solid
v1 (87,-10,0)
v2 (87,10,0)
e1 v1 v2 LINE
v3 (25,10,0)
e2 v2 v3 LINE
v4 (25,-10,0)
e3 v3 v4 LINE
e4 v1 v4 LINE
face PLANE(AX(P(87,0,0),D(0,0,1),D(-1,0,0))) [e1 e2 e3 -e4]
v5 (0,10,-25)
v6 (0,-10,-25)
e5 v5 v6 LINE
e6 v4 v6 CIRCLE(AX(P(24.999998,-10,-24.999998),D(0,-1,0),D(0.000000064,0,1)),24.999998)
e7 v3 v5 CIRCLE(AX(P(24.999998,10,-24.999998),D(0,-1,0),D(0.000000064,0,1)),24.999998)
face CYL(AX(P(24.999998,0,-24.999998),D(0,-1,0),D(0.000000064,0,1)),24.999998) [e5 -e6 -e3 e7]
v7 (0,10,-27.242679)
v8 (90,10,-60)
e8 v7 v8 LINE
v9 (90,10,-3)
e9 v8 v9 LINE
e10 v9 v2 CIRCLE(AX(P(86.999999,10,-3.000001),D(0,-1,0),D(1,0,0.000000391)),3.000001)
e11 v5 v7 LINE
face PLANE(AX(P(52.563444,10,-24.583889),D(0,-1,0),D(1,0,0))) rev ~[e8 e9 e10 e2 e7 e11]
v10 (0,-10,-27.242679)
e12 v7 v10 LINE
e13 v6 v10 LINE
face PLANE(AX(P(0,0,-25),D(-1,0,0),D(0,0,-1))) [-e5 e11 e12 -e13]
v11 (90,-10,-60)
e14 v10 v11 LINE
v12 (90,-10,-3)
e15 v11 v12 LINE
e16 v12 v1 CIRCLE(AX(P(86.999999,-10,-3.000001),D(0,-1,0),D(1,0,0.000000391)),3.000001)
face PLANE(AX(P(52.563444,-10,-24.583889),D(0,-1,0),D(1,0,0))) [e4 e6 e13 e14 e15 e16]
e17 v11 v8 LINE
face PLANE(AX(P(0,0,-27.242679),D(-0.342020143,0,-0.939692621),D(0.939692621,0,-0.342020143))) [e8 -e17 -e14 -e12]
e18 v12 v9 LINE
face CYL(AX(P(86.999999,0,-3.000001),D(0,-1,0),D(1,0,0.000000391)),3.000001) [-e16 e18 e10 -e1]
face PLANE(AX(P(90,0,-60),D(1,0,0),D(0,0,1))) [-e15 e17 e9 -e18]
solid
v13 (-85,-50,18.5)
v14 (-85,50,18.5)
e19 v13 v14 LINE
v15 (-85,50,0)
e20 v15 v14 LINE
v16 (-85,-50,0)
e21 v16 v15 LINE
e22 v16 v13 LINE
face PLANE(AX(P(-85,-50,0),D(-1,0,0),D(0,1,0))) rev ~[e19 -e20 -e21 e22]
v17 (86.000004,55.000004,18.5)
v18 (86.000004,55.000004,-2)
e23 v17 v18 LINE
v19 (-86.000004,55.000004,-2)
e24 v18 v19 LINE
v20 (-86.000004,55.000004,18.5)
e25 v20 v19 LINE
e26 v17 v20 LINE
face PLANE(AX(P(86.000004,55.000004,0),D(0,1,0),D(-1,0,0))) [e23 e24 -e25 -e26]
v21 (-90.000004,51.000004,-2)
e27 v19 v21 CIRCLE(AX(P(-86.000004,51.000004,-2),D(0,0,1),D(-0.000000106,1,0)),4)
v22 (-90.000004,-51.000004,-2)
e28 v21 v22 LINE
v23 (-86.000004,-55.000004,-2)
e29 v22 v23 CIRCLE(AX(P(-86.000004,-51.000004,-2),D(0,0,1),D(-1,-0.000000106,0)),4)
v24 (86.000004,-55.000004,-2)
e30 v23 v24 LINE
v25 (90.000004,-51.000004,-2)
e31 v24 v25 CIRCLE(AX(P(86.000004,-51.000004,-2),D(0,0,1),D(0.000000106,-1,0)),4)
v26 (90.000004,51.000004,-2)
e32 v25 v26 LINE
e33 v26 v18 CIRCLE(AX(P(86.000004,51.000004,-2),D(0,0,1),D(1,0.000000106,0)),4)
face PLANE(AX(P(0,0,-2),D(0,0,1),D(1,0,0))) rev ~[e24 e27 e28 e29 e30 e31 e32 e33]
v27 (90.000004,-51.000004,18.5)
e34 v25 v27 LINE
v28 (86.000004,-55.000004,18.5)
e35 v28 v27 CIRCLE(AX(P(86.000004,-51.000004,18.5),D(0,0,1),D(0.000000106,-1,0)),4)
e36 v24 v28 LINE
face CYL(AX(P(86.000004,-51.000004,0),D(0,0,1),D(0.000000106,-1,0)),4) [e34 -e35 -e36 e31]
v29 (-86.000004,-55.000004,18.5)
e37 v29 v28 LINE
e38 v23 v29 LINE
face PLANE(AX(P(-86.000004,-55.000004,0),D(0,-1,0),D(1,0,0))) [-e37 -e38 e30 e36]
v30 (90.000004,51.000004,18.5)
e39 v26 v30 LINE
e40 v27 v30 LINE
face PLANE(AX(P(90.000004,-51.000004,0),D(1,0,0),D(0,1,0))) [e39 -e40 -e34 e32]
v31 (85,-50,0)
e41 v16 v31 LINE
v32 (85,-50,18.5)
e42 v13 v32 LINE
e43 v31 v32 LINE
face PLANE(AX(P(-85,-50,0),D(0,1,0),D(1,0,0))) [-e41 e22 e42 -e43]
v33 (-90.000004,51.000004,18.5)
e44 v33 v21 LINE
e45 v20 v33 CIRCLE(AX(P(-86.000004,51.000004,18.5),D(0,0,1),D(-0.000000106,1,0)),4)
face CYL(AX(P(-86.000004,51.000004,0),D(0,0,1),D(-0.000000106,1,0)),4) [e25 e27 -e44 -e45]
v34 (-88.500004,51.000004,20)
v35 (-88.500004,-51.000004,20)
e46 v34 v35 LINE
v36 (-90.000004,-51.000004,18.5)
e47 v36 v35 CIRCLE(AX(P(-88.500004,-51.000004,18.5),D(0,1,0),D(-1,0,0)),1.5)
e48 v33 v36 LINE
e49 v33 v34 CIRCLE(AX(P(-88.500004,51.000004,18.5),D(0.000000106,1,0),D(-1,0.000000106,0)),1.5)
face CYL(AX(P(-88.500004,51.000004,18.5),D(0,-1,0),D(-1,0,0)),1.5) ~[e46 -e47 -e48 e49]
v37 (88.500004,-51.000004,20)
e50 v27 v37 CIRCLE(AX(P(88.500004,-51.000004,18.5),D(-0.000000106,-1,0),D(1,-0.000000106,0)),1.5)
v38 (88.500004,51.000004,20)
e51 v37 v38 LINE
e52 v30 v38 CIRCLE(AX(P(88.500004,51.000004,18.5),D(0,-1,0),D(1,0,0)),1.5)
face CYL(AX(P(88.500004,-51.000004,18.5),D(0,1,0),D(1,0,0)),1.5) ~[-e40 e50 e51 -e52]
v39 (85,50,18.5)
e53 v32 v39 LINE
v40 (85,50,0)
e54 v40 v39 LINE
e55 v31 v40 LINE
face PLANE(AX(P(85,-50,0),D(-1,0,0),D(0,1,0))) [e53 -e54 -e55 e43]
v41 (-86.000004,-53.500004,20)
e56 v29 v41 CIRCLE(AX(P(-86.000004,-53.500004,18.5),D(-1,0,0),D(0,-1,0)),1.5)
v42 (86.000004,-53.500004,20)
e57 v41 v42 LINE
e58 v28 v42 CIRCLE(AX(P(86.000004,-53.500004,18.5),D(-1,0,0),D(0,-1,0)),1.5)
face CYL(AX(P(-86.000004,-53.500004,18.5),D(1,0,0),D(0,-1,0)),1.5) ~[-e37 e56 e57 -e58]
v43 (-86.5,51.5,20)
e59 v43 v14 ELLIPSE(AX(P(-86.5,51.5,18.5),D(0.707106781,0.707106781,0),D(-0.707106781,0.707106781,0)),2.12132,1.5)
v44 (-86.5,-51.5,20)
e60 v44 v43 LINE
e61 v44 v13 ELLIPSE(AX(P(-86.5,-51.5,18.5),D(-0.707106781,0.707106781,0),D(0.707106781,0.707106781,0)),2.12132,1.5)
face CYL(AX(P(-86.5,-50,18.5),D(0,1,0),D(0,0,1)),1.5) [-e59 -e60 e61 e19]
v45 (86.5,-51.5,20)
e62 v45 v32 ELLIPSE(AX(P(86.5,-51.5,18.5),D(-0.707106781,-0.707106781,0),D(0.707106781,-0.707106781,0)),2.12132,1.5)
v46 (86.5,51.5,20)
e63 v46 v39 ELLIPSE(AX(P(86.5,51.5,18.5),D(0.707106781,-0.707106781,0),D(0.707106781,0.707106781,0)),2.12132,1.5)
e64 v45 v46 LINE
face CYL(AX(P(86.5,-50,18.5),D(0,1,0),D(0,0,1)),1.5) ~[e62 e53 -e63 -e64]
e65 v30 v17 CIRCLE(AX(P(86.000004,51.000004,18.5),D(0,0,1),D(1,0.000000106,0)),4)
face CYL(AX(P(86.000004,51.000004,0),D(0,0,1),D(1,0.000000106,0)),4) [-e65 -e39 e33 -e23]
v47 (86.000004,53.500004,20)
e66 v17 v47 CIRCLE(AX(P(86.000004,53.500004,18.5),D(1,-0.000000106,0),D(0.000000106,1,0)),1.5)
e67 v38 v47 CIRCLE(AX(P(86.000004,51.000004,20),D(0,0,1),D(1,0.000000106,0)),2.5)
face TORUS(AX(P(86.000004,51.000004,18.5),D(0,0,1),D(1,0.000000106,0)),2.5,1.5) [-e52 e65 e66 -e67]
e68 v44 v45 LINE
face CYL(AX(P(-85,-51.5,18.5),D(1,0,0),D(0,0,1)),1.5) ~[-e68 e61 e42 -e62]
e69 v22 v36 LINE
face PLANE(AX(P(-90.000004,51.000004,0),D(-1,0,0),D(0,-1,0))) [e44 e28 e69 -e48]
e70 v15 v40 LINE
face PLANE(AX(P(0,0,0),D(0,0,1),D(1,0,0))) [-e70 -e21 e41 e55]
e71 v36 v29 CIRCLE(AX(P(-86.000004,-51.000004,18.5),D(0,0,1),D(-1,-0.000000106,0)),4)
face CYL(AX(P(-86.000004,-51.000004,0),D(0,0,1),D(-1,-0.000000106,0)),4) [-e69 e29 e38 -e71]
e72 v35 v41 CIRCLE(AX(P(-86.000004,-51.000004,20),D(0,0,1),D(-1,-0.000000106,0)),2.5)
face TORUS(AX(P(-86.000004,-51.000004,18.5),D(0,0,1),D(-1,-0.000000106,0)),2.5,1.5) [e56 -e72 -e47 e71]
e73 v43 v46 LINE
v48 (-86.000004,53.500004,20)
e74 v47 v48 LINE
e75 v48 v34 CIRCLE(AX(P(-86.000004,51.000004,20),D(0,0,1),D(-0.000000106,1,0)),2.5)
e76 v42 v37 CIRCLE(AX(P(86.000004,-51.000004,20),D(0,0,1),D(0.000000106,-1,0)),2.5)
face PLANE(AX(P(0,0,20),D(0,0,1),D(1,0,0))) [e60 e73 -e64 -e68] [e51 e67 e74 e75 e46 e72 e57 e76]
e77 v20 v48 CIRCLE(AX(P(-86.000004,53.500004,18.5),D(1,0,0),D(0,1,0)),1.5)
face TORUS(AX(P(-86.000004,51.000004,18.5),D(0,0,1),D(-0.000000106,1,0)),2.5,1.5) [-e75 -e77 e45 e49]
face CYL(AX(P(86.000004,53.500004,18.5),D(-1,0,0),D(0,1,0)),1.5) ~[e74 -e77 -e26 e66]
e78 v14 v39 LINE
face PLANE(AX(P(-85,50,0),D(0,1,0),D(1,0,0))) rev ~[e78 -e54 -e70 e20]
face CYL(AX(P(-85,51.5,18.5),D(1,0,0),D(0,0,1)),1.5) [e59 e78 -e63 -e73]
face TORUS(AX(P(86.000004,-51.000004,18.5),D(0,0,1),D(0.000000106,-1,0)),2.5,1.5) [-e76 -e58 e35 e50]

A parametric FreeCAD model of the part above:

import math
import FreeCAD as App
import Part
import Sketcher
Q = App.Units.Quantity


def edges_at(feature, points):
    """Names of the edges that pass closest to the given points."""
    edges = feature.Shape.Edges
    near = lambda p: min(range(len(edges)), key=lambda i: edges[i].distToShape(Part.Vertex(*p))[0])
    return sorted({f"Edge{near(p) + 1}" for p in points})

doc = App.newDocument("Part")
body = doc.addObject("PartDesign::Body", "Body")

sketch1 = doc.addObject("Sketcher::SketchObject", "Sketch")
body.addObject(sketch1)
sketch1.AttachmentSupport = (doc.XY_Plane, [""])
sketch1.MapMode = "FlatFace"
sketch1.addGeometry([
    Part.LineSegment(App.Vector(-90, 51, 0), App.Vector(-90, -51, 0)),
    Part.ArcOfCircle(Part.Circle(App.Vector(-86, -51, 0), App.Vector(0, 0, 1), 4), math.radians(-180), math.radians(-90)),
    Part.LineSegment(App.Vector(-86, -55, 0), App.Vector(86, -55, 0)),
    Part.ArcOfCircle(Part.Circle(App.Vector(86, -51, 0), App.Vector(0, 0, 1), 4), math.radians(-90), math.radians(0)),
    Part.LineSegment(App.Vector(90, -51, 0), App.Vector(90, 51, 0)),
    Part.ArcOfCircle(Part.Circle(App.Vector(86, 51, 0), App.Vector(0, 0, 1), 4), math.radians(0), math.radians(90)),
    Part.LineSegment(App.Vector(86, 55, 0), App.Vector(-86, 55, 0)),
    Part.ArcOfCircle(Part.Circle(App.Vector(-86, 51, 0), App.Vector(0, 0, 1), 4), math.radians(90), math.radians(180)),
    Part.LineSegment(App.Vector(85, -50, 0), App.Vector(-85, -50, 0)),
    Part.LineSegment(App.Vector(-85, -50, 0), App.Vector(-85, 50, 0)),
    Part.LineSegment(App.Vector(-85, 50, 0), App.Vector(85, 50, 0)),
    Part.LineSegment(App.Vector(85, 50, 0), App.Vector(85, -50, 0)),
], False)
sketch1.addConstraint([
    Sketcher.Constraint("Tangent", 0, 2, 1, 1),
    Sketcher.Constraint("Tangent", 1, 2, 2, 1),
    Sketcher.Constraint("Tangent", 2, 2, 3, 1),
    Sketcher.Constraint("Tangent", 3, 2, 4, 1),
    Sketcher.Constraint("Tangent", 4, 2, 5, 1),
    Sketcher.Constraint("Tangent", 5, 2, 6, 1),
    Sketcher.Constraint("Tangent", 6, 2, 7, 1),
    Sketcher.Constraint("Tangent", 7, 2, 0, 1),
    Sketcher.Constraint("Coincident", 8, 2, 9, 1),
    Sketcher.Constraint("Coincident", 9, 2, 10, 1),
    Sketcher.Constraint("Coincident", 10, 2, 11, 1),
    Sketcher.Constraint("Coincident", 11, 2, 8, 1),
    Sketcher.Constraint("Vertical", 0),
    Sketcher.Constraint("Horizontal", 2),
    Sketcher.Constraint("Vertical", 4),
    Sketcher.Constraint("Horizontal", 6),
    Sketcher.Constraint("Horizontal", 8),
    Sketcher.Constraint("Vertical", 9),
    Sketcher.Constraint("Horizontal", 10),
    Sketcher.Constraint("Vertical", 11),
    Sketcher.Constraint("Equal", 1, 3),
    Sketcher.Constraint("Equal", 3, 5),
    Sketcher.Constraint("Equal", 5, 7),
    Sketcher.Constraint("Symmetric", 1, 3, 5, 3, -1, 1),
    Sketcher.Constraint("Symmetric", 8, 2, 10, 2, -1, 1),
    Sketcher.Constraint("Radius", 1, 4.0),
    Sketcher.Constraint("DistanceX", 8, 2, 8, 1, 170.0),
    Sketcher.Constraint("DistanceY", 9, 1, 9, 2, 100.0),
    Sketcher.Constraint("DistanceX", 2, 1, 2, 2, 172.000008),
    Sketcher.Constraint("DistanceY", 0, 2, 0, 1, 102.000008),
])
pad1 = doc.addObject("PartDesign::Pad", "Pad")
body.addObject(pad1)
pad1.Profile = sketch1
pad1.Length = 20

sketch2 = doc.addObject("Sketcher::SketchObject", "Sketch001")
body.addObject(sketch2)
sketch2.AttachmentSupport = (doc.XY_Plane, [""])
sketch2.MapMode = "FlatFace"
sketch2.addGeometry([
    Part.LineSegment(App.Vector(-90, 51, 0), App.Vector(-90, -51, 0)),
    Part.ArcOfCircle(Part.Circle(App.Vector(-86, -51, 0), App.Vector(0, 0, 1), 4), math.radians(-180), math.radians(-90)),
    Part.LineSegment(App.Vector(-86, -55, 0), App.Vector(86, -55, 0)),
    Part.ArcOfCircle(Part.Circle(App.Vector(86, -51, 0), App.Vector(0, 0, 1), 4), math.radians(-90), math.radians(0)),
    Part.LineSegment(App.Vector(90, -51, 0), App.Vector(90, 51, 0)),
    Part.ArcOfCircle(Part.Circle(App.Vector(86, 51, 0), App.Vector(0, 0, 1), 4), math.radians(0), math.radians(90)),
    Part.LineSegment(App.Vector(86, 55, 0), App.Vector(-86, 55, 0)),
    Part.ArcOfCircle(Part.Circle(App.Vector(-86, 51, 0), App.Vector(0, 0, 1), 4), math.radians(90), math.radians(180)),
], False)
sketch2.addConstraint([
    Sketcher.Constraint("Tangent", 0, 2, 1, 1),
    Sketcher.Constraint("Tangent", 1, 2, 2, 1),
    Sketcher.Constraint("Tangent", 2, 2, 3, 1),
    Sketcher.Constraint("Tangent", 3, 2, 4, 1),
    Sketcher.Constraint("Tangent", 4, 2, 5, 1),
    Sketcher.Constraint("Tangent", 5, 2, 6, 1),
    Sketcher.Constraint("Tangent", 6, 2, 7, 1),
    Sketcher.Constraint("Tangent", 7, 2, 0, 1),
    Sketcher.Constraint("Vertical", 0),
    Sketcher.Constraint("Horizontal", 2),
    Sketcher.Constraint("Vertical", 4),
    Sketcher.Constraint("Horizontal", 6),
    Sketcher.Constraint("Equal", 1, 3),
    Sketcher.Constraint("Equal", 3, 5),
    Sketcher.Constraint("Equal", 5, 7),
    Sketcher.Constraint("Symmetric", 1, 3, 5, 3, -1, 1),
    Sketcher.Constraint("Radius", 1, 4.0),
    Sketcher.Constraint("DistanceX", 2, 1, 2, 2, 172.000008),
    Sketcher.Constraint("DistanceY", 0, 2, 0, 1, 102.000008),
])
pad2 = doc.addObject("PartDesign::Pad", "Pad001")
body.addObject(pad2)
pad2.Profile = sketch2
pad2.Length = 2
pad2.Reversed = True
doc.recompute()

fillet = doc.addObject("PartDesign::Fillet", "Fillet")
body.addObject(fillet)
fillet.Base = (pad2, edges_at(pad2, [
    (0, -55, 20),
    (0, -50, 20),
    (-85, 0, 20),
    (-90, 0, 20),
    (0, 50, 20),
    (0, 55, 20),
    (90, 0, 20),
    (85, 0, 20),
]))
fillet.Radius = 1.5
body2 = doc.addObject("PartDesign::Body", "Body001")

sketch3 = doc.addObject("Sketcher::SketchObject", "Sketch002")
body2.addObject(sketch3)
sketch3.AttachmentSupport = (doc.getObject("XZ_Plane001"), [""])
sketch3.MapMode = "FlatFace"
sketch3.addGeometry([
    Part.LineSegment(App.Vector(87, 0, 0), App.Vector(25, 0, 0)),
    Part.ArcOfCircle(Part.Circle(App.Vector(25, -25, 0), App.Vector(0, 0, 1), 25), math.radians(90), math.radians(180)),
    Part.LineSegment(App.Vector(0, -25, 0), App.Vector(0, -27.2, 0)),
    Part.LineSegment(App.Vector(0, -27.2, 0), App.Vector(90, -60, 0)),
    Part.LineSegment(App.Vector(90, -60, 0), App.Vector(90, -3, 0)),
    Part.ArcOfCircle(Part.Circle(App.Vector(87, -3, 0), App.Vector(0, 0, 1), 3), math.radians(0), math.radians(90)),
], False)
sketch3.addConstraint([
    Sketcher.Constraint("Tangent", 0, 2, 1, 1),
    Sketcher.Constraint("Tangent", 1, 2, 2, 1),
    Sketcher.Constraint("Coincident", 2, 2, 3, 1),
    Sketcher.Constraint("Coincident", 3, 2, 4, 1),
    Sketcher.Constraint("Tangent", 4, 2, 5, 1),
    Sketcher.Constraint("Tangent", 5, 2, 0, 1),
    Sketcher.Constraint("Horizontal", 0),
    Sketcher.Constraint("Vertical", 2),
    Sketcher.Constraint("Vertical", 4),
    Sketcher.Constraint("PointOnObject", 0, 2, -1),
    Sketcher.Constraint("PointOnObject", 1, 2, -2),
    Sketcher.Constraint("Radius", 1, 24.999998),
    Sketcher.Constraint("Radius", 5, 3.000001),
    Sketcher.Constraint("DistanceX", 0, 2, 0, 1, 62.0),
    Sketcher.Constraint("DistanceY", 4, 1, 4, 2, 57.0),
    Sketcher.Constraint("Angle", 3, Q("-20 deg")),
])
pad3 = doc.addObject("PartDesign::Pad", "Pad002")
body2.addObject(pad3)
pad3.Profile = sketch3
pad3.Length = 20
pad3.Midplane = True

doc.recompute()
